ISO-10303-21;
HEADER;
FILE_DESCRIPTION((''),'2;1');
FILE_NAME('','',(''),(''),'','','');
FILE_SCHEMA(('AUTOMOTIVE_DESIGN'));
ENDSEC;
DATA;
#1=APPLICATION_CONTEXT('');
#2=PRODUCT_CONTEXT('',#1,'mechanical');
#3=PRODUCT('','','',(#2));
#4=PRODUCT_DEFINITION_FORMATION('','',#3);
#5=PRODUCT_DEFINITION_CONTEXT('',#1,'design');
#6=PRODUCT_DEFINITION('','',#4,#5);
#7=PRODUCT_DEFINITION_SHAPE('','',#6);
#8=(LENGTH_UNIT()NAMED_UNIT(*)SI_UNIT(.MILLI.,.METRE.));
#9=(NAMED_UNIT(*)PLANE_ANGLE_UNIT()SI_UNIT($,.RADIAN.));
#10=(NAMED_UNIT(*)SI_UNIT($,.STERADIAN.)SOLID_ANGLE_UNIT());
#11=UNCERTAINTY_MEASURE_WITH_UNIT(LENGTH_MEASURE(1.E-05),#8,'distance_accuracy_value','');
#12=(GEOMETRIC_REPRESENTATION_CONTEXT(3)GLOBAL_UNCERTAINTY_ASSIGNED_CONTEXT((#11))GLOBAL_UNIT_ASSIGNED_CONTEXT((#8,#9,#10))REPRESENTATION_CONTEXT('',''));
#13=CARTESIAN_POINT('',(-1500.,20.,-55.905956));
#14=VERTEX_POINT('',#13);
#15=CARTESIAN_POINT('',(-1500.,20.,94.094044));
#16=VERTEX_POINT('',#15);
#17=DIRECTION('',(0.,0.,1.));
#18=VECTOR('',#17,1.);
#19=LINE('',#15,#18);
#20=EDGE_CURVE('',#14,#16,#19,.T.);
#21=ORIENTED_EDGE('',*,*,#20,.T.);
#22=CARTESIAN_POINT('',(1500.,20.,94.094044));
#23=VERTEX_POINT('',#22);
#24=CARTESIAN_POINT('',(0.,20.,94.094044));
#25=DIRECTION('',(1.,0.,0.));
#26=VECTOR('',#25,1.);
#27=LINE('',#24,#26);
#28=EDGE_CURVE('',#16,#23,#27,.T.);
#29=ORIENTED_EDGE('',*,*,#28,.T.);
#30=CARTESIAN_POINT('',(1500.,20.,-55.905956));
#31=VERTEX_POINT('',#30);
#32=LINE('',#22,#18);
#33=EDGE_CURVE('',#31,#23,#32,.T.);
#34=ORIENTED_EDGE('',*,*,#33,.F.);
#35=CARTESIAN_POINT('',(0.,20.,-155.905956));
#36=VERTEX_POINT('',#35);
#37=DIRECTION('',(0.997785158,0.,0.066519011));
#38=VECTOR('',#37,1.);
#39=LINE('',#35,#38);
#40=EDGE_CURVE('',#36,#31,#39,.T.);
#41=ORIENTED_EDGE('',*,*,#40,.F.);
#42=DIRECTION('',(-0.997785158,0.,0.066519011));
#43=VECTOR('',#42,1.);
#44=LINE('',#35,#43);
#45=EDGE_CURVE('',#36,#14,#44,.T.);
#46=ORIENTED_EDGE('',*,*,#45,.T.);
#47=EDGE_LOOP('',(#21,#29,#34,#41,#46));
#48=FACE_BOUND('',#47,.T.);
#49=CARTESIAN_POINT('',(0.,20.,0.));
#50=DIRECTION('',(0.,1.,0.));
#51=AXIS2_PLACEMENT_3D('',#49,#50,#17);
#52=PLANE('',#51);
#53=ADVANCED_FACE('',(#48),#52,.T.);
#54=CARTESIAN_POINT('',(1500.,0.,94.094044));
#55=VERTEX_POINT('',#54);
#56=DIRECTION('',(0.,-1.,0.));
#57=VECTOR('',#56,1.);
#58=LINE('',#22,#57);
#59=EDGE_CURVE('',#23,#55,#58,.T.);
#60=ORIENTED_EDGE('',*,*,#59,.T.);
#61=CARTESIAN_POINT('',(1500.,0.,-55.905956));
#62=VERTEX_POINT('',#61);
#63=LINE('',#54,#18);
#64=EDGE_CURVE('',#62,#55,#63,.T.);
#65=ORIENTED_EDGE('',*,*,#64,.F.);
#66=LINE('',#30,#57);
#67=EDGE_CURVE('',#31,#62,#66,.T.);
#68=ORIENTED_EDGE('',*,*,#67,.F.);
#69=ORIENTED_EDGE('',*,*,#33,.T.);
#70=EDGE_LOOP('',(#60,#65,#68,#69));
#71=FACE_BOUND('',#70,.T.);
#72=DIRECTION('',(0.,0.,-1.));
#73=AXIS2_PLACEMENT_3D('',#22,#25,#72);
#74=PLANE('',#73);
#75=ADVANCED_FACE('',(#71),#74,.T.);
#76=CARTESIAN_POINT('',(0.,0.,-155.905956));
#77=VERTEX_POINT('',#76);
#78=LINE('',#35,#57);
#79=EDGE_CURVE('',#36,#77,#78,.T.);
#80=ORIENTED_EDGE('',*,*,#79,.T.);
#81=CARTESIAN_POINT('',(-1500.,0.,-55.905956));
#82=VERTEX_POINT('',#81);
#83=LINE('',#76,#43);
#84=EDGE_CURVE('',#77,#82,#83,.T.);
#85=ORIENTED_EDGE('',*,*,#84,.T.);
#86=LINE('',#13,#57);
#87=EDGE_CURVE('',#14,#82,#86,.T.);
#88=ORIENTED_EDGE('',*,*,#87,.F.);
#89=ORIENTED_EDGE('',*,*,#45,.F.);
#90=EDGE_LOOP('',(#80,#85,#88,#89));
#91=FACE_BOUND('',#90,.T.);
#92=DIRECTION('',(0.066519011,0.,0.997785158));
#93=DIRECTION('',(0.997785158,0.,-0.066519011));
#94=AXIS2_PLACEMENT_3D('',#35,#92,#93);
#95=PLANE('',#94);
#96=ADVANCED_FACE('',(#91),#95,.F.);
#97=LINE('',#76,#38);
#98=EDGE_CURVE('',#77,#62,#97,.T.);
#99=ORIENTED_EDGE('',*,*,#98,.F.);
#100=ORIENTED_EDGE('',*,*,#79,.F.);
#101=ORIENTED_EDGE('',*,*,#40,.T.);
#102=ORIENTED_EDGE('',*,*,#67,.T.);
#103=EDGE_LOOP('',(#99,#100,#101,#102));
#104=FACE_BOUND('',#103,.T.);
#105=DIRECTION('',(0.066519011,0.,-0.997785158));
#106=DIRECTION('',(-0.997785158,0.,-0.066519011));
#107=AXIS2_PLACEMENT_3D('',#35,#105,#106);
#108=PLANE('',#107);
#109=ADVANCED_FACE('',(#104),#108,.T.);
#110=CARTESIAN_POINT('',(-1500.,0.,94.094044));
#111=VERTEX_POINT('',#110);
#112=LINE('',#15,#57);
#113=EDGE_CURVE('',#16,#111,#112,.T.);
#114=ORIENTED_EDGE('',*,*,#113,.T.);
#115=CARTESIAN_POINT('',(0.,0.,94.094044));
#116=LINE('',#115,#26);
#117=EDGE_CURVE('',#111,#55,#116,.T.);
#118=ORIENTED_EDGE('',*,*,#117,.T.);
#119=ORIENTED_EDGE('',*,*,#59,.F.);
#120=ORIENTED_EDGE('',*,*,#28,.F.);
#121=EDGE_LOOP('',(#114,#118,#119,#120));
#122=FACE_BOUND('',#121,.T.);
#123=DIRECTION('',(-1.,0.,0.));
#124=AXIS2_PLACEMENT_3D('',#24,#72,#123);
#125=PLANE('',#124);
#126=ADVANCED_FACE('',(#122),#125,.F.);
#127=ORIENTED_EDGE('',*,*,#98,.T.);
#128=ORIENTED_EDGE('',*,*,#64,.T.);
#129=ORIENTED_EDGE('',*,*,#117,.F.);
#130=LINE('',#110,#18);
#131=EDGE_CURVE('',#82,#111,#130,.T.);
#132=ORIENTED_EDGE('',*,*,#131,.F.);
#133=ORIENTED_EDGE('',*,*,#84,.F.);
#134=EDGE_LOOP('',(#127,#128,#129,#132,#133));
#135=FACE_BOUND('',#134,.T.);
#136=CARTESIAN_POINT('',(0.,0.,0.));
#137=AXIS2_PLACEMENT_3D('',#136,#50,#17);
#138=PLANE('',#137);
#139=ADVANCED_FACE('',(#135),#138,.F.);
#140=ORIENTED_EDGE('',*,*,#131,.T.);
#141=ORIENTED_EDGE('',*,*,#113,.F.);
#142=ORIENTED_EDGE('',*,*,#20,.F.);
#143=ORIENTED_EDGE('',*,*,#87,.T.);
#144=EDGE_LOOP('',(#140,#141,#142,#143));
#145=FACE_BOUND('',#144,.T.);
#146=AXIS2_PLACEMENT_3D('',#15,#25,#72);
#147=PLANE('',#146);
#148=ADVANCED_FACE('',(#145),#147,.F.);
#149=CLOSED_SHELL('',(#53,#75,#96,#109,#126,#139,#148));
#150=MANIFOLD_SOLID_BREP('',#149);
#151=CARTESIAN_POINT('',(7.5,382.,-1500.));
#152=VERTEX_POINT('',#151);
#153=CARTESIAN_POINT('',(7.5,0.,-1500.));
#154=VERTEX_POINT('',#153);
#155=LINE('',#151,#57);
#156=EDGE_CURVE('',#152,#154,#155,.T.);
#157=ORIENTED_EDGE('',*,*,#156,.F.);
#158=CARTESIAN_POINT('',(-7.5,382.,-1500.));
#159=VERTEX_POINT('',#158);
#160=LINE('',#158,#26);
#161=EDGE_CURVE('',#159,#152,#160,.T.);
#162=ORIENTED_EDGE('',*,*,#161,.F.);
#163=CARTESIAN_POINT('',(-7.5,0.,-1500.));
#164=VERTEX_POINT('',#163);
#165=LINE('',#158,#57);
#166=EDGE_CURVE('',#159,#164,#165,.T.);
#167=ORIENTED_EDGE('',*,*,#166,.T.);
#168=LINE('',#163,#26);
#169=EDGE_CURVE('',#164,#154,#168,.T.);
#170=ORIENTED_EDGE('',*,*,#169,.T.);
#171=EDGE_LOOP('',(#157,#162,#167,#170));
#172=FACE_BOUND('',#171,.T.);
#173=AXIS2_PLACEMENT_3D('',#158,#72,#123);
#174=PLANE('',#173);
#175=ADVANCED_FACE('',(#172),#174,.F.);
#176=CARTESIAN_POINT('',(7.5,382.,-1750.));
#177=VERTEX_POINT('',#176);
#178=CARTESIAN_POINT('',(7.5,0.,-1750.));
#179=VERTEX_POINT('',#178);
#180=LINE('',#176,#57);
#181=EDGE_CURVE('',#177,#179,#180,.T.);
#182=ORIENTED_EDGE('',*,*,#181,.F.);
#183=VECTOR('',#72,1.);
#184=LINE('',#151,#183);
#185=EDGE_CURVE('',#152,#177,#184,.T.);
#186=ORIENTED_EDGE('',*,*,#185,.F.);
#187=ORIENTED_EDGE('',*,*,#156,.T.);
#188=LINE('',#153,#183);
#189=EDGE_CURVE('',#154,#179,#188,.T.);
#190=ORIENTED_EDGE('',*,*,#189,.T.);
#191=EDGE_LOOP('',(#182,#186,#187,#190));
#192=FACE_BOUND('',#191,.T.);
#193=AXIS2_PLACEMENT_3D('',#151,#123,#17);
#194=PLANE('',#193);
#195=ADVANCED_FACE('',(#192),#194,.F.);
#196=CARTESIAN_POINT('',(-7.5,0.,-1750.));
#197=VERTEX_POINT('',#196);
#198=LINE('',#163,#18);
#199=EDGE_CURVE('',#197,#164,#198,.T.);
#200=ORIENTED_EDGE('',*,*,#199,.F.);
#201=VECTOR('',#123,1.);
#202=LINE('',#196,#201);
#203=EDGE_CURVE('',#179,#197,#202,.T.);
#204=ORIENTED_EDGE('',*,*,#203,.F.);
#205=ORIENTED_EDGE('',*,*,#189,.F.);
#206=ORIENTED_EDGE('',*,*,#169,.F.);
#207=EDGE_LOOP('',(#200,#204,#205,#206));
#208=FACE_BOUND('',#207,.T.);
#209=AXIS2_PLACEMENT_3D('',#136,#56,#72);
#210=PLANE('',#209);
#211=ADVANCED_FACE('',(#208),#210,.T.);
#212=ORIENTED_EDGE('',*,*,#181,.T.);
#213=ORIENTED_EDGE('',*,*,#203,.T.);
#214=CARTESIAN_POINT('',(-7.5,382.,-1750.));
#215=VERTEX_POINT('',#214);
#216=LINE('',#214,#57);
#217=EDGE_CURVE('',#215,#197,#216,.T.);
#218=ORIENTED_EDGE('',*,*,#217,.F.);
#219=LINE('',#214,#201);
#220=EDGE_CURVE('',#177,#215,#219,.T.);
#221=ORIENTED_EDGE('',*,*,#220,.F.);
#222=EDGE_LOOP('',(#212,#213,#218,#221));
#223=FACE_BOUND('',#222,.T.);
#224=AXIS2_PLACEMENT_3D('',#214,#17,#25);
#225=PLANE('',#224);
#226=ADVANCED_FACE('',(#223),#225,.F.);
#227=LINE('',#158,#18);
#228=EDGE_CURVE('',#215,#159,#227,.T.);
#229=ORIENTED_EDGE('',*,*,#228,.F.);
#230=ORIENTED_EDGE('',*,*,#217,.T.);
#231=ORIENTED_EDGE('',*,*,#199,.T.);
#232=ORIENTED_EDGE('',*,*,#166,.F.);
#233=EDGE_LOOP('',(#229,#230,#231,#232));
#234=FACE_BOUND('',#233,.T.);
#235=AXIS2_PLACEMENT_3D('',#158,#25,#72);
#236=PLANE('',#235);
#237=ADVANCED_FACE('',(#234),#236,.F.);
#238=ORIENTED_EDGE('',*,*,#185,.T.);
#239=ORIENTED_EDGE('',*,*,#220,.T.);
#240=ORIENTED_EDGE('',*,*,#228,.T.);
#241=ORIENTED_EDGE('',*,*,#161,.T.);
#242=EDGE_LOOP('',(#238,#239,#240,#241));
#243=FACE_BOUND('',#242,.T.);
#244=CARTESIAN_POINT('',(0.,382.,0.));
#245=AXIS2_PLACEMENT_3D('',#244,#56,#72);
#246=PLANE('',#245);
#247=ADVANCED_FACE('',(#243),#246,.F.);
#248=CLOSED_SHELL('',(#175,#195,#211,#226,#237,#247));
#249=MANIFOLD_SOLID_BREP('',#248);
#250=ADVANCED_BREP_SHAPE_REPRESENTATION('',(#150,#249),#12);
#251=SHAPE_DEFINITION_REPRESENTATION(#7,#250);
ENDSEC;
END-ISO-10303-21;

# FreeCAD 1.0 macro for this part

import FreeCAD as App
import Part
import Sketcher
Q = App.Units.Quantity

doc = App.newDocument("Part")
body = doc.addObject("PartDesign::Body", "Body")

# Sketch on XZ plane
sketch1 = doc.addObject("Sketcher::SketchObject", "Sketch")
body.addObject(sketch1)
sketch1.AttachmentSupport = (doc.XZ_Plane, [""])
sketch1.MapMode = "FlatFace"
sketch1.addGeometry([
    Part.LineSegment(App.Vector(-1500, 94.094044, 0), App.Vector(0, 94.094044, 0)),
    Part.LineSegment(App.Vector(0, 94.094044, 0), App.Vector(0, -155.905956, 0)),
    Part.LineSegment(App.Vector(0, -155.905956, 0), App.Vector(-1500, -55.905956, 0)),
    Part.LineSegment(App.Vector(-1500, -55.905956, 0), App.Vector(-1500, 94.094044, 0)),
], False)
sketch1.addConstraint([
    Sketcher.Constraint("Coincident", 0, 2, 1, 1),
    Sketcher.Constraint("Coincident", 1, 2, 2, 1),
    Sketcher.Constraint("Coincident", 2, 2, 3, 1),
    Sketcher.Constraint("Coincident", 3, 2, 0, 1),
    Sketcher.Constraint("Horizontal", 0),
    Sketcher.Constraint("Vertical", 1),
    Sketcher.Constraint("Vertical", 3),
    Sketcher.Constraint("PointOnObject", 0, 2, -2),
    Sketcher.Constraint("DistanceX", 0, 1, 0, 2, Q("1500 mm")),
    Sketcher.Constraint("DistanceY", 1, 2, 1, 1, Q("250 mm")),
    Sketcher.Constraint("DistanceY", 3, 1, 3, 2, Q("150 mm")),
    Sketcher.Constraint("DistanceY", -1, 1, 0, 2, Q("94.094044 mm")),
])
pad1 = doc.addObject("PartDesign::Pad", "Pad")
body.addObject(pad1)
pad1.Profile = sketch1
pad1.Length = 20
pad1.Reversed = True
doc.recompute()

mirrored = doc.addObject("PartDesign::Mirrored", "Mirrored")
body.addObject(mirrored)
mirrored.Originals = [pad1]
mirrored.MirrorPlane = (doc.YZ_Plane, [""])
body.Tip = mirrored
body2 = doc.addObject("PartDesign::Body", "Body001")

# Sketch on XZ plane
sketch2 = doc.addObject("Sketcher::SketchObject", "Sketch001")
body2.addObject(sketch2)
sketch2.AttachmentSupport = (doc.getObject("XZ_Plane001"), [""])
sketch2.MapMode = "FlatFace"
sketch2.addGeometry([
    Part.LineSegment(App.Vector(-7.5, -1750, 0), App.Vector(-7.5, -1500, 0)),
    Part.LineSegment(App.Vector(-7.5, -1500, 0), App.Vector(7.5, -1500, 0)),
    Part.LineSegment(App.Vector(7.5, -1500, 0), App.Vector(7.5, -1750, 0)),
    Part.LineSegment(App.Vector(7.5, -1750, 0), App.Vector(-7.5, -1750, 0)),
], False)
sketch2.addConstraint([
    Sketcher.Constraint("Coincident", 0, 2, 1, 1),
    Sketcher.Constraint("Coincident", 1, 2, 2, 1),
    Sketcher.Constraint("Coincident", 2, 2, 3, 1),
    Sketcher.Constraint("Coincident", 3, 2, 0, 1),
    Sketcher.Constraint("Vertical", 0),
    Sketcher.Constraint("Horizontal", 1),
    Sketcher.Constraint("Vertical", 2),
    Sketcher.Constraint("Horizontal", 3),
    Sketcher.Constraint("DistanceX", 1, 1, 1, 2, Q("15 mm")),
    Sketcher.Constraint("DistanceY", 0, 1, 0, 2, Q("250 mm")),
    Sketcher.Constraint("DistanceY", 0, 2, -1, 1, Q("1500 mm")),
    Sketcher.Constraint("DistanceX", 0, 2, -1, 1, Q("7.5 mm")),
])
pad2 = doc.addObject("PartDesign::Pad", "Pad001")
body2.addObject(pad2)
pad2.Profile = sketch2
pad2.Length = 382
pad2.Reversed = True

doc.recompute()
